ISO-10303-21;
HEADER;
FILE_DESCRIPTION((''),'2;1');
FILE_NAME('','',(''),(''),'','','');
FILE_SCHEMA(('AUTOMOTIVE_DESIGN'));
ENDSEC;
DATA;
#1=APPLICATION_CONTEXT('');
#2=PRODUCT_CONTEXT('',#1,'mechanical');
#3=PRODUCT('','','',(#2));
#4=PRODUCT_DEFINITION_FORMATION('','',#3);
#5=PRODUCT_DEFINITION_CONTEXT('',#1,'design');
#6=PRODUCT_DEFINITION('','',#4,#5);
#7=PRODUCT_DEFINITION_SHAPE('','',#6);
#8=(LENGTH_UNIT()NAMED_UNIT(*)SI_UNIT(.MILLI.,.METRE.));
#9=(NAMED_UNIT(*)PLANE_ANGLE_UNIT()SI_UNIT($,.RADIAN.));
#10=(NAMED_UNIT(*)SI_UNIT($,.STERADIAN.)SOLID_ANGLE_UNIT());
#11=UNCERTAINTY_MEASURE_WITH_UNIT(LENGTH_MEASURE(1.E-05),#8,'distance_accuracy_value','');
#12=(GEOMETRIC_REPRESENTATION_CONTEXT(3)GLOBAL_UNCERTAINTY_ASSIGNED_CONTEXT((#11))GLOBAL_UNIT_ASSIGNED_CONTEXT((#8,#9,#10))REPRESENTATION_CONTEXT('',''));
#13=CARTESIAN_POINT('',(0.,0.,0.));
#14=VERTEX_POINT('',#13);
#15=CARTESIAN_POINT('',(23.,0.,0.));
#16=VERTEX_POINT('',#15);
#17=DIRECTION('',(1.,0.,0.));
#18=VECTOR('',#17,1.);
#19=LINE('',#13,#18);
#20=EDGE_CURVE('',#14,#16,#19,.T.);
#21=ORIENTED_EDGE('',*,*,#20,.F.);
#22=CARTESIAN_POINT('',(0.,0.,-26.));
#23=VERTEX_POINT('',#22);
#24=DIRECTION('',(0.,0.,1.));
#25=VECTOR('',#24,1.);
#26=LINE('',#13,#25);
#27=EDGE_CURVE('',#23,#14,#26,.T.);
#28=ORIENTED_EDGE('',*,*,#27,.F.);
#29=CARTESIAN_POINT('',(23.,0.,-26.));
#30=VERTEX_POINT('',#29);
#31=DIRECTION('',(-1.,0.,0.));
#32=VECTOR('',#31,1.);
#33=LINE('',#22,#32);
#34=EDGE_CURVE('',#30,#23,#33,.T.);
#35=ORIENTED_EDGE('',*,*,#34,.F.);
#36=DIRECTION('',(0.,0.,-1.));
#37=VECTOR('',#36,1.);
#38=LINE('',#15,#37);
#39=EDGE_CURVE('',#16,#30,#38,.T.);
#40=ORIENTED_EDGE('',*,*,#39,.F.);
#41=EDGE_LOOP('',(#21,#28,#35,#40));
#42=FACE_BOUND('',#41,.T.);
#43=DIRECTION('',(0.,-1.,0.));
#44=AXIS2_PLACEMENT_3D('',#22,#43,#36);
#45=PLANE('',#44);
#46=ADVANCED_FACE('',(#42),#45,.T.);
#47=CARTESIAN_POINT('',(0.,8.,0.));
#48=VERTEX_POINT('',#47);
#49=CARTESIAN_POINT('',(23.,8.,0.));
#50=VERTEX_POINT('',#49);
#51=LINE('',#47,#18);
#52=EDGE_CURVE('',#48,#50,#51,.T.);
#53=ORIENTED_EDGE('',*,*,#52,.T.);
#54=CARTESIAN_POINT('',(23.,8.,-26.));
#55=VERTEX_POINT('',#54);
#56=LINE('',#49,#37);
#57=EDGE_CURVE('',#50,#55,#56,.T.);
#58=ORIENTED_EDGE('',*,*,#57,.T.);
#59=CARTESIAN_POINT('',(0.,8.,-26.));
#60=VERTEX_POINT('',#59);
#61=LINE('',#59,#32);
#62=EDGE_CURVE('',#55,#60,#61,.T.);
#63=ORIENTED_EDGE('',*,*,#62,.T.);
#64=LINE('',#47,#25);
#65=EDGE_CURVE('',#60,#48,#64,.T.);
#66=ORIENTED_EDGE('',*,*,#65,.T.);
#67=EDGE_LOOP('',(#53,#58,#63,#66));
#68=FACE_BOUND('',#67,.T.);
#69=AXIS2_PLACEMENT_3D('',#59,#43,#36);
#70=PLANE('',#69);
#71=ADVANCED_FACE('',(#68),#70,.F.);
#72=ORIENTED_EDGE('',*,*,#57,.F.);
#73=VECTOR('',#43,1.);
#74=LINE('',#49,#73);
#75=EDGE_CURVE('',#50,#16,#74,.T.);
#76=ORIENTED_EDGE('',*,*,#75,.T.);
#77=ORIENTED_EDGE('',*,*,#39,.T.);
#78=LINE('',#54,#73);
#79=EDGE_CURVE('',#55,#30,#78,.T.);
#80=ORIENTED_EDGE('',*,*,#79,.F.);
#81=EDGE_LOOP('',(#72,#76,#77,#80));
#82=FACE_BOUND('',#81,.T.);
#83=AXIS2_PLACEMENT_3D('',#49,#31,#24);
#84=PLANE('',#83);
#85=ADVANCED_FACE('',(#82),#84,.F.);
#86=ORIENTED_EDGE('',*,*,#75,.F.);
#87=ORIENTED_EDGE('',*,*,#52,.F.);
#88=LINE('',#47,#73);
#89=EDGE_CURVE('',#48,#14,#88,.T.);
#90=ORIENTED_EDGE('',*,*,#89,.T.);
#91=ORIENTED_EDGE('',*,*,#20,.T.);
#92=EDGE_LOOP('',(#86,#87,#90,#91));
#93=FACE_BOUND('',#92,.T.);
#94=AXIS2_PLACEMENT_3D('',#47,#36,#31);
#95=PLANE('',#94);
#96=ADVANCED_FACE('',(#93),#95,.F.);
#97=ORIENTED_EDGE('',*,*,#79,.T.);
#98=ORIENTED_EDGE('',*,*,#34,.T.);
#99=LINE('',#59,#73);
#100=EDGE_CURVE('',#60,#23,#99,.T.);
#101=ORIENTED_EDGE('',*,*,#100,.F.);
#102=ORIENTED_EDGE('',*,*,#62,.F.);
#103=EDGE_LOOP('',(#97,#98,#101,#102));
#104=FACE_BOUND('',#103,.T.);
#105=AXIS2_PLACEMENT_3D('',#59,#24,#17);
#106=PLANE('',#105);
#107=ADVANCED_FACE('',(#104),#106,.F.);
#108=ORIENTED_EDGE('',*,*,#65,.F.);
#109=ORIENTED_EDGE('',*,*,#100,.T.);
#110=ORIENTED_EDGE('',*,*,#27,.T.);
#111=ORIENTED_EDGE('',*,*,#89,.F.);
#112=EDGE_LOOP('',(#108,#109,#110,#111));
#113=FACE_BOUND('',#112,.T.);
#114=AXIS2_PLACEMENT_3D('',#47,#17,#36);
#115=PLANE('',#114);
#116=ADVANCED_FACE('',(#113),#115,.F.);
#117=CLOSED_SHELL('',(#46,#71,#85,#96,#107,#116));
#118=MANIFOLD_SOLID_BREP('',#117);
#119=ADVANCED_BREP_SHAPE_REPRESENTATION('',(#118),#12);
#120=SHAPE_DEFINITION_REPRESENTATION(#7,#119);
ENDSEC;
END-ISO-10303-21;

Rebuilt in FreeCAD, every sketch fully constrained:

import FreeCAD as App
import Part
import Sketcher
from FreeCAD import Vector
Q = App.Units.Quantity

doc = App.newDocument("Part")
body = doc.addObject("PartDesign::Body", "Body")

# Sketch on XZ plane
sketch1 = doc.addObject("Sketcher::SketchObject", "Sketch")
body.addObject(sketch1)
sketch1.AttachmentSupport = (doc.XZ_Plane, [""])
sketch1.MapMode = "FlatFace"
sketch1.addGeometry(Part.LineSegment(Vector(0, -26, 0), Vector(0, 0, 0)), False)
sketch1.addGeometry(Part.LineSegment(Vector(0, 0, 0), Vector(23, 0, 0)), False)
sketch1.addGeometry(Part.LineSegment(Vector(23, 0, 0), Vector(23, -26, 0)), False)
sketch1.addGeometry(Part.LineSegment(Vector(23, -26, 0), Vector(0, -26, 0)), False)
sketch1.addConstraint(Sketcher.Constraint("Coincident", 0, 2, 1, 1))
sketch1.addConstraint(Sketcher.Constraint("Coincident", 1, 2, 2, 1))
sketch1.addConstraint(Sketcher.Constraint("Coincident", 2, 2, 3, 1))
sketch1.addConstraint(Sketcher.Constraint("Coincident", 3, 2, 0, 1))
sketch1.addConstraint(Sketcher.Constraint("Vertical", 0))
sketch1.addConstraint(Sketcher.Constraint("Horizontal", 1))
sketch1.addConstraint(Sketcher.Constraint("Vertical", 2))
sketch1.addConstraint(Sketcher.Constraint("Horizontal", 3))
sketch1.addConstraint(Sketcher.Constraint("Coincident", 0, 2, -1, 1))
sketch1.addConstraint(Sketcher.Constraint("DistanceX", 1, 1, 1, 2, Q("23 mm")))
sketch1.addConstraint(Sketcher.Constraint("DistanceY", 0, 1, 0, 2, Q("26 mm")))
pad1 = doc.addObject("PartDesign::Pad", "Pad")
body.addObject(pad1)
pad1.Profile = sketch1
pad1.Length = 8
pad1.Reversed = True

doc.recompute()
